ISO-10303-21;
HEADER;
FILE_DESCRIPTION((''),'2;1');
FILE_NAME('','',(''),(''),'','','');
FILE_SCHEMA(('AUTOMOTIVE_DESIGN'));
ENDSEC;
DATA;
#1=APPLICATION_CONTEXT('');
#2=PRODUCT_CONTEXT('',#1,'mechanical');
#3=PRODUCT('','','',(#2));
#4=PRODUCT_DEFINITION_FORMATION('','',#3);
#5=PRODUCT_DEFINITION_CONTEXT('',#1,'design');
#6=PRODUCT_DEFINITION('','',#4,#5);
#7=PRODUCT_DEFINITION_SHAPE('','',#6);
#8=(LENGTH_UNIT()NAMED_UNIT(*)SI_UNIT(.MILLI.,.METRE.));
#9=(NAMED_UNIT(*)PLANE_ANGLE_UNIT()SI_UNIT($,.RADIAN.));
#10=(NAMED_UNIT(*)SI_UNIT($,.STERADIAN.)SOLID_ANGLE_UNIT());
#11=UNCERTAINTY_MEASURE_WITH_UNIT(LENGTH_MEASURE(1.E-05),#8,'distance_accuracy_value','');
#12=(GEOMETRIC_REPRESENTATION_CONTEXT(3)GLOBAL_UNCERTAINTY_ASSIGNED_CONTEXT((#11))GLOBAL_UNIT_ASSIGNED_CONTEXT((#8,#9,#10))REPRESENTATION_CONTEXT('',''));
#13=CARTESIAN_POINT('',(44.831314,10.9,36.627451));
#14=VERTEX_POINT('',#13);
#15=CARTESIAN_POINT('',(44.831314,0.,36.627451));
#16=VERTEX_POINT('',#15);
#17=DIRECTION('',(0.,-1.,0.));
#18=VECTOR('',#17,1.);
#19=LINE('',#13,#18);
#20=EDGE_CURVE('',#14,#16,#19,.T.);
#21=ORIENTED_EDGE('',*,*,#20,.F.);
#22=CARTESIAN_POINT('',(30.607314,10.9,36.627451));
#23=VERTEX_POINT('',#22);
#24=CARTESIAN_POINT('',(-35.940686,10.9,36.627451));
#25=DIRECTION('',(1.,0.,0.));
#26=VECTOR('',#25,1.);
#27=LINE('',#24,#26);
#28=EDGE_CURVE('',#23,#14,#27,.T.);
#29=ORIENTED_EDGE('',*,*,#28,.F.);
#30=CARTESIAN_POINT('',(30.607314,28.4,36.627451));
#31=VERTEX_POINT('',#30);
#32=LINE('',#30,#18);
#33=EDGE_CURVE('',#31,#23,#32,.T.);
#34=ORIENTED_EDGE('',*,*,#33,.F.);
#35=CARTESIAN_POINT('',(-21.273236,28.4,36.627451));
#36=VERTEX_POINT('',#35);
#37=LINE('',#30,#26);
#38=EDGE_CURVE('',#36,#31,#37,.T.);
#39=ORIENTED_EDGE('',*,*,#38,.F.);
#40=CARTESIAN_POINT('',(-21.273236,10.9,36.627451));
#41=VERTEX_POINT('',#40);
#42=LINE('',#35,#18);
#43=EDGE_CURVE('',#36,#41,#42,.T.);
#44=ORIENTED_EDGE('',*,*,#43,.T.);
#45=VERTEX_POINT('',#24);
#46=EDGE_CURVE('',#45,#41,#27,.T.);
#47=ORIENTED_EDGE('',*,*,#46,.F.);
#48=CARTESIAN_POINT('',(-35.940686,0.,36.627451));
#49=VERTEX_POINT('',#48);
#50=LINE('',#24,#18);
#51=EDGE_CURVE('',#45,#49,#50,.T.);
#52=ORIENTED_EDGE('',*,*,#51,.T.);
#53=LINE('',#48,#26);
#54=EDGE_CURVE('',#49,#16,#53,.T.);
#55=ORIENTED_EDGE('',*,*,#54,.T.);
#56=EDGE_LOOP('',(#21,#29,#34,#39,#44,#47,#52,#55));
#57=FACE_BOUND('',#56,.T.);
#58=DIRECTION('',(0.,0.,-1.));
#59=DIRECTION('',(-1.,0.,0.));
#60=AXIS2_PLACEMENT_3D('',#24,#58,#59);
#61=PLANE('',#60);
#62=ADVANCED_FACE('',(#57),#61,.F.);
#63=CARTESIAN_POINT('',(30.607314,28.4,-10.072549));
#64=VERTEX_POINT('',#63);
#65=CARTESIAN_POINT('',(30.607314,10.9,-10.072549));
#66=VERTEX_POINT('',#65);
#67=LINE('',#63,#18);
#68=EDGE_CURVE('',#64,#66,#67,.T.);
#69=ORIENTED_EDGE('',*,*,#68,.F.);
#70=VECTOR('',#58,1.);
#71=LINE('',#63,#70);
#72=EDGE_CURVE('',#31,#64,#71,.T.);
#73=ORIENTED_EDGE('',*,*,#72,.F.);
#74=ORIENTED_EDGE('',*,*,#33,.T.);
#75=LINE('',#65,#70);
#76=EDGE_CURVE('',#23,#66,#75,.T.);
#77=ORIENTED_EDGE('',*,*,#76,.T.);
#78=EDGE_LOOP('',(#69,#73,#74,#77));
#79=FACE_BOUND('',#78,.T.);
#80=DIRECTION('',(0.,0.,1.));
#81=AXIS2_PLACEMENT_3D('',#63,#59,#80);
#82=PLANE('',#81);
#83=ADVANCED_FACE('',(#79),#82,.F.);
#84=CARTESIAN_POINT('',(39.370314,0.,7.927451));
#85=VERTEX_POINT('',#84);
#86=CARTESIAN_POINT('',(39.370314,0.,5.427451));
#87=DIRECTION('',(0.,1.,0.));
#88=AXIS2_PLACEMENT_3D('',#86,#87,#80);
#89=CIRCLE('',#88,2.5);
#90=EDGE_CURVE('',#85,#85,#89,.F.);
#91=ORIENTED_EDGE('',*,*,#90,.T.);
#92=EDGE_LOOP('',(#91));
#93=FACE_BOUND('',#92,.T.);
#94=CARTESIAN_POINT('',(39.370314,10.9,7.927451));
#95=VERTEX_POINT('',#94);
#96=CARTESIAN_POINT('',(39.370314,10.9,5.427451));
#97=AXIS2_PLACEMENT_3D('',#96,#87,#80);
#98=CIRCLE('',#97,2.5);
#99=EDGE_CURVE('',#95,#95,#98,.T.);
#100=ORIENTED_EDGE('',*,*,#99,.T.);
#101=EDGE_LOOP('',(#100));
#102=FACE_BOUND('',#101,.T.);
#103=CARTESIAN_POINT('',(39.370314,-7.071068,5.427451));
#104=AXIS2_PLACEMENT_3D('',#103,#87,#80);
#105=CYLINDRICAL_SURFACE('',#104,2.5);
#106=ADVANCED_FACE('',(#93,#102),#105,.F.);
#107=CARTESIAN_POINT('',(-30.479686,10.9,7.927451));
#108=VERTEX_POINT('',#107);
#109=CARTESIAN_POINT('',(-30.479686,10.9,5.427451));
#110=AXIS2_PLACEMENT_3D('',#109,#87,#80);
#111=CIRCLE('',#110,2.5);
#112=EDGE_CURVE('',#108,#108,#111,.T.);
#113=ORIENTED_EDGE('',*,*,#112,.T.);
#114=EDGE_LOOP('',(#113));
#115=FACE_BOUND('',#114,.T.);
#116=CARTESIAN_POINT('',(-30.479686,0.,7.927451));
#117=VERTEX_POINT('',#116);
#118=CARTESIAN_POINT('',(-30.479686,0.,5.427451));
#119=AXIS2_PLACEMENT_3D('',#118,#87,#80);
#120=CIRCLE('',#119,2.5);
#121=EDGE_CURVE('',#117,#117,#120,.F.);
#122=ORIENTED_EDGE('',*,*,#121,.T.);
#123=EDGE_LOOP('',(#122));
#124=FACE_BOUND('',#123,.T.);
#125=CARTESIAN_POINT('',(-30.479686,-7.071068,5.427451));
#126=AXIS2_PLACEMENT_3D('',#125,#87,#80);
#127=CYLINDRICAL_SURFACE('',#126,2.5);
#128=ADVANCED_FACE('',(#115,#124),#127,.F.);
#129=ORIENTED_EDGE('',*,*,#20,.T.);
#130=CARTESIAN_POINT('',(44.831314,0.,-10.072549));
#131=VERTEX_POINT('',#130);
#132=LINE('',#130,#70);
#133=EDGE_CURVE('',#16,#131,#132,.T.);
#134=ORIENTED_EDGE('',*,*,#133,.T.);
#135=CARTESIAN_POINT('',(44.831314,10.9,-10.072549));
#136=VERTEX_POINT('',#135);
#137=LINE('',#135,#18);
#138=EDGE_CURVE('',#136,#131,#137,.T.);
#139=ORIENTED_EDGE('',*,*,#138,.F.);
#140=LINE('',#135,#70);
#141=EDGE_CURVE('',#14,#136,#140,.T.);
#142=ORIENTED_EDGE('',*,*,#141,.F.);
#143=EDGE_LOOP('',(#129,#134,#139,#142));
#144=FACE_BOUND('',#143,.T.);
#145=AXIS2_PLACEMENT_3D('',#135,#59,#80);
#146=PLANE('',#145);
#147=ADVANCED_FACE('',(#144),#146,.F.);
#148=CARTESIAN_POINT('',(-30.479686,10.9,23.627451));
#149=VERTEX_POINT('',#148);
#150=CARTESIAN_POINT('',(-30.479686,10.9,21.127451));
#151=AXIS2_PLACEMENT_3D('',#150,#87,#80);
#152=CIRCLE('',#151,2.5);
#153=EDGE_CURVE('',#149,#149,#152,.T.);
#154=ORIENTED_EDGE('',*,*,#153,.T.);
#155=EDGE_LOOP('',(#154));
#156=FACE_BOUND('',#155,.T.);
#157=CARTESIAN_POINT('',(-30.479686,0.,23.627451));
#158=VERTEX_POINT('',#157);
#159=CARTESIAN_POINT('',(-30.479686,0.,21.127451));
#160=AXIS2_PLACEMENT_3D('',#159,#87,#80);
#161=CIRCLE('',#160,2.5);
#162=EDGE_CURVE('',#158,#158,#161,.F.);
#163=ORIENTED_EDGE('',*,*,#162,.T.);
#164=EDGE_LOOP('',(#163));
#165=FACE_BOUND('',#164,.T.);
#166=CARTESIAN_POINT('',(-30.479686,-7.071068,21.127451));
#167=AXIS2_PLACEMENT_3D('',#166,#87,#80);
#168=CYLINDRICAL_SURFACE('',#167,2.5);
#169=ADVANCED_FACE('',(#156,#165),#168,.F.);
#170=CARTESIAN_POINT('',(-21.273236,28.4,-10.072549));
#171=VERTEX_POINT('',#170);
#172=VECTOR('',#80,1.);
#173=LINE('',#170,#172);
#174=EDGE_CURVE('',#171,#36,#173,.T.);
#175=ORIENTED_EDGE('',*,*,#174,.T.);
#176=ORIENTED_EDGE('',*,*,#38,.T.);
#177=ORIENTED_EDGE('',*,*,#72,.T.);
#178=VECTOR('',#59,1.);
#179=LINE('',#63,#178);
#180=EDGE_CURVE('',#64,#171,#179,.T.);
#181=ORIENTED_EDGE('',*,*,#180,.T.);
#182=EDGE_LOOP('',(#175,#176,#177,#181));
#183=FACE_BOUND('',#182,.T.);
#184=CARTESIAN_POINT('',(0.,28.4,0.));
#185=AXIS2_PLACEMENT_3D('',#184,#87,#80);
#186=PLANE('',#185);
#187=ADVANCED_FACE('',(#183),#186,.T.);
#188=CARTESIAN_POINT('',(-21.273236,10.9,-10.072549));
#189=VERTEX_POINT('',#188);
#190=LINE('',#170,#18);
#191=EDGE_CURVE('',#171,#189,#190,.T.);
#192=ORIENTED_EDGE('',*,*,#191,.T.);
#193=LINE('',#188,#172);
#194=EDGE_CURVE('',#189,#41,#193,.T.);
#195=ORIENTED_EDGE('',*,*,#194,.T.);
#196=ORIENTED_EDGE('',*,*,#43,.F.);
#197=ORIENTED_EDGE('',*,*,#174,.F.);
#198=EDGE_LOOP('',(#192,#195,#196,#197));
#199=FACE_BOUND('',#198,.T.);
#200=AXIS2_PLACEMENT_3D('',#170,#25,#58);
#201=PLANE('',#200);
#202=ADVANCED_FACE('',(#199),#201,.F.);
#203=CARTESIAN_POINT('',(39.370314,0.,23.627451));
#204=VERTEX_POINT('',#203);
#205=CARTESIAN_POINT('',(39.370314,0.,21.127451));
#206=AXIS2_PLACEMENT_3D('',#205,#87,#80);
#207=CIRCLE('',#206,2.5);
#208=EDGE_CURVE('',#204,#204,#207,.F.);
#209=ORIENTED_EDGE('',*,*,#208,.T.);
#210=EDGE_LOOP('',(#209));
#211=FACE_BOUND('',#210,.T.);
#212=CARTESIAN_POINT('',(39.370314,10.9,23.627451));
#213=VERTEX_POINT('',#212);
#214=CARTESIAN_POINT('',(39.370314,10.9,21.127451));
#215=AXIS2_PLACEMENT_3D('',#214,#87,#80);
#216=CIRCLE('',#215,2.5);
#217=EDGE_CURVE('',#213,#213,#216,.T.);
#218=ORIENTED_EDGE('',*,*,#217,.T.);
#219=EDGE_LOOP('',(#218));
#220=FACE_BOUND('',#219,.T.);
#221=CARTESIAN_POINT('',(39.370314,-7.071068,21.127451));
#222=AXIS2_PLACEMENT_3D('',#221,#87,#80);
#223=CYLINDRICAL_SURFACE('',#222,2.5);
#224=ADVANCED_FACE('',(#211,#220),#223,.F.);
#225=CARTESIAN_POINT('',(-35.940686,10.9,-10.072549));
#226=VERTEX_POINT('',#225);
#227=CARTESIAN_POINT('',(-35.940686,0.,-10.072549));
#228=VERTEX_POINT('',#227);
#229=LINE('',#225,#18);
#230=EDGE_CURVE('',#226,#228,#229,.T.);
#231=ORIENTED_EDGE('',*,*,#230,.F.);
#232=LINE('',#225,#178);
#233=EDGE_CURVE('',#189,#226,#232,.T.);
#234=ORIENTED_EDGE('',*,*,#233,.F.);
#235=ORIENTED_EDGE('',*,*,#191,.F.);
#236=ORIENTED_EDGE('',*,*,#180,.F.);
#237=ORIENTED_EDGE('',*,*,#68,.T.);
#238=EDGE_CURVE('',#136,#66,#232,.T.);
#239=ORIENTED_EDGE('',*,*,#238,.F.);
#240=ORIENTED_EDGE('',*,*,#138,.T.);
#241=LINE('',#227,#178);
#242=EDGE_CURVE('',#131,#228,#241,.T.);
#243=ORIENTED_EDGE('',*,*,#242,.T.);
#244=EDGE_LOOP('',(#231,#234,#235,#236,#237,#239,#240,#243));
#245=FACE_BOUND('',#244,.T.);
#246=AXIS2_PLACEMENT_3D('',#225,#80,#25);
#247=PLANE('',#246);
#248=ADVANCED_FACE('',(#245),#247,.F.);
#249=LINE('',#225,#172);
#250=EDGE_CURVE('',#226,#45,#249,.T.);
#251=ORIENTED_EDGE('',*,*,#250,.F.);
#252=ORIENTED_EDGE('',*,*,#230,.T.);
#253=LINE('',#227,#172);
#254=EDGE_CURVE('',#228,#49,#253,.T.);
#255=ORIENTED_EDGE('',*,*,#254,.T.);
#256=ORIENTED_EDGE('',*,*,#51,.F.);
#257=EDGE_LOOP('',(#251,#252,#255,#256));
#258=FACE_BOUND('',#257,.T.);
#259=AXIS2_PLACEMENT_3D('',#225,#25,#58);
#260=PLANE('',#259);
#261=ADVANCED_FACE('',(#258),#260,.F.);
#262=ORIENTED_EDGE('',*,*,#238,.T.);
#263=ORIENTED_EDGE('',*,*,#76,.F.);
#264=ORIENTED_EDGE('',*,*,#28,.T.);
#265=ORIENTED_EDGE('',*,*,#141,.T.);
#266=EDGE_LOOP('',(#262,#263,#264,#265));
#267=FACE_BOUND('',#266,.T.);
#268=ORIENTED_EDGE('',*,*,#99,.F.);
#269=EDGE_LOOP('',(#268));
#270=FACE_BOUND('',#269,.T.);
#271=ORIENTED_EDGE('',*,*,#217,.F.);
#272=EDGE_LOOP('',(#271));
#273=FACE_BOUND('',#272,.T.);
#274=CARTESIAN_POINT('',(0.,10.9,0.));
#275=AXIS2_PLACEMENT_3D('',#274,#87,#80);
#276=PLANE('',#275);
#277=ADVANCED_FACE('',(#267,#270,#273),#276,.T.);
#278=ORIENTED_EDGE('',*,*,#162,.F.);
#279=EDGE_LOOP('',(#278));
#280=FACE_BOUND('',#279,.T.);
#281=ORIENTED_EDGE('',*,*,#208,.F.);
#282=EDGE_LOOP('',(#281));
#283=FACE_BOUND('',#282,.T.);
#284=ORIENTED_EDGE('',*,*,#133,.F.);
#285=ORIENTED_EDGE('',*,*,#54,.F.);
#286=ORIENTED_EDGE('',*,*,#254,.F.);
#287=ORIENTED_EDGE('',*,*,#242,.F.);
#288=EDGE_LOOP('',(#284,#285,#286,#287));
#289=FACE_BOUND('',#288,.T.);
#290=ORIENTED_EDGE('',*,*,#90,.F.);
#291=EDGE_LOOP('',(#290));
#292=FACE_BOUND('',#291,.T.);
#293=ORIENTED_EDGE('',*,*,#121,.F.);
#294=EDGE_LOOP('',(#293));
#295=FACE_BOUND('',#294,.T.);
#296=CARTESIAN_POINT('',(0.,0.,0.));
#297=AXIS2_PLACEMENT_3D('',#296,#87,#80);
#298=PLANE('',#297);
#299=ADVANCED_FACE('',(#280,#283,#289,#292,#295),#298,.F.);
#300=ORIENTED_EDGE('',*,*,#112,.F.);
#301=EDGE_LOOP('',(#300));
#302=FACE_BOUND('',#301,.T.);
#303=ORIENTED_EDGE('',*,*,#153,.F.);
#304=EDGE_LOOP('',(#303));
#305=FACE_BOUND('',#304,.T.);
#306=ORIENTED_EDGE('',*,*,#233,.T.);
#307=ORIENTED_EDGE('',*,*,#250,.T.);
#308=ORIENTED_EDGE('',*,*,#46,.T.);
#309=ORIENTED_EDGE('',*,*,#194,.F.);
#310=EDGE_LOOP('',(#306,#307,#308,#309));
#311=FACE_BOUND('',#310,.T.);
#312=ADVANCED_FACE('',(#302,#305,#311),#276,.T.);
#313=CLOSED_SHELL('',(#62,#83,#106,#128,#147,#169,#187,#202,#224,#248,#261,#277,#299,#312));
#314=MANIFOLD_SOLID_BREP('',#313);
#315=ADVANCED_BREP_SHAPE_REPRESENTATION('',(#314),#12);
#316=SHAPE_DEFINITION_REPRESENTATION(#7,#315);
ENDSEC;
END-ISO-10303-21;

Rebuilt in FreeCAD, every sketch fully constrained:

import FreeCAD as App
import Part
import Sketcher

V = App.Vector


def add_polygon(sketch, points):
    """Adds a closed chain of lines whose ends are joined by coincident constraints."""
    first, n = sketch.GeometryCount, len(points)
    for a, b in zip(points, points[1:] + points[:1]):
        sketch.addGeometry(Part.LineSegment(App.Vector(*a, 0), App.Vector(*b, 0)), False)
    for i in range(n):
        sketch.addConstraint(Sketcher.Constraint("Coincident", first + i, 2, first + (i + 1) % n, 1))

doc = App.newDocument("Part")
body = doc.addObject("PartDesign::Body", "Body")

# Sketch on XZ plane
sketch1 = body.newObject("Sketcher::SketchObject", "Sketch")
sketch1.AttachmentSupport = (doc.getObject("XZ_Plane"), [""])
sketch1.MapMode = "FlatFace"
add_polygon(sketch1, [(-36, -10), (-36, 37), (45, 37), (45, -10)])  # lines 0-3
sketch1.addConstraint(Sketcher.Constraint("Vertical", 0))
sketch1.addConstraint(Sketcher.Constraint("Horizontal", 1))
sketch1.addConstraint(Sketcher.Constraint("Vertical", 2))
sketch1.addConstraint(Sketcher.Constraint("Horizontal", 3))
sketch1.addConstraint(Sketcher.Constraint("DistanceY", 0, 1, 0, 2, 46.7))
sketch1.addConstraint(Sketcher.Constraint("DistanceX", 1, 1, 1, 2, 80.772))
sketch1.addConstraint(Sketcher.Constraint("DistanceY", -1, 1, 0, 2, 36.627451))
sketch1.addConstraint(Sketcher.Constraint("DistanceX", 0, 2, -1, 1, 35.940686))
pad1 = body.newObject("PartDesign::Pad", "Pad")
pad1.Profile = sketch1
pad1.Length = 10.9
pad1.Reversed = True

# Sketch on XZ plane
sketch2 = body.newObject("Sketcher::SketchObject", "Sketch001")
sketch2.AttachmentSupport = (doc.getObject("XZ_Plane"), [""])
sketch2.MapMode = "FlatFace"
sketch2.AttachmentOffset = App.Placement(V(0, 0, -10.9), App.Rotation())
sketch2.addGeometry(Part.Circle(V(-30.5, 5.4, 0), V(0, 0, 1), 2.5), False)
sketch2.addGeometry(Part.Circle(V(-30.5, 21.1, 0), V(0, 0, 1), 2.5), False)
sketch2.addGeometry(Part.Circle(V(39.4, 5.4, 0), V(0, 0, 1), 2.5), False)
sketch2.addGeometry(Part.Circle(V(39.4, 21.1, 0), V(0, 0, 1), 2.5), False)
sketch2.addConstraint(Sketcher.Constraint("Equal", 0, 1))
sketch2.addConstraint(Sketcher.Constraint("Equal", 1, 2))
sketch2.addConstraint(Sketcher.Constraint("Equal", 2, 3))
sketch2.addConstraint(Sketcher.Constraint("Horizontal", 0, 3, 2, 3))
sketch2.addConstraint(Sketcher.Constraint("Horizontal", 1, 3, 3, 3))
sketch2.addConstraint(Sketcher.Constraint("Vertical", 0, 3, 1, 3))
sketch2.addConstraint(Sketcher.Constraint("Vertical", 2, 3, 3, 3))
sketch2.addConstraint(Sketcher.Constraint("Diameter", 0, 5.0))
sketch2.addConstraint(Sketcher.Constraint("DistanceY", 0, 3, 1, 3, 15.7))
sketch2.addConstraint(Sketcher.Constraint("DistanceX", 0, 3, 2, 3, 69.85))
sketch2.addConstraint(Sketcher.Constraint("DistanceY", -1, 1, 0, 3, 5.427451))
sketch2.addConstraint(Sketcher.Constraint("DistanceX", 0, 3, -1, 1, 30.479686))
pocket1 = body.newObject("PartDesign::Pocket", "Pocket")
pocket1.Profile = sketch2
pocket1.Length = 10.9
pocket1.Reversed = True

# Sketch on XZ plane
sketch3 = body.newObject("Sketcher::SketchObject", "Sketch002")
sketch3.AttachmentSupport = (doc.getObject("XZ_Plane"), [""])
sketch3.MapMode = "FlatFace"
sketch3.AttachmentOffset = App.Placement(V(0, 0, -10.9), App.Rotation())
add_polygon(sketch3, [(-21, -10), (-21, 37), (31, 37), (31, -10)])  # lines 0-3
sketch3.addConstraint(Sketcher.Constraint("Vertical", 0))
sketch3.addConstraint(Sketcher.Constraint("Horizontal", 1))
sketch3.addConstraint(Sketcher.Constraint("Vertical", 2))
sketch3.addConstraint(Sketcher.Constraint("Horizontal", 3))
sketch3.addConstraint(Sketcher.Constraint("DistanceY", 0, 1, 0, 2, 46.7))
sketch3.addConstraint(Sketcher.Constraint("DistanceX", 1, 1, 1, 2, 51.88055))
sketch3.addConstraint(Sketcher.Constraint("DistanceY", -1, 1, 0, 2, 36.627451))
sketch3.addConstraint(Sketcher.Constraint("DistanceX", 0, 2, -1, 1, 21.273236))
pad2 = body.newObject("PartDesign::Pad", "Pad001")
pad2.Profile = sketch3
pad2.Length = 17.5
pad2.Reversed = True

doc.recompute()
